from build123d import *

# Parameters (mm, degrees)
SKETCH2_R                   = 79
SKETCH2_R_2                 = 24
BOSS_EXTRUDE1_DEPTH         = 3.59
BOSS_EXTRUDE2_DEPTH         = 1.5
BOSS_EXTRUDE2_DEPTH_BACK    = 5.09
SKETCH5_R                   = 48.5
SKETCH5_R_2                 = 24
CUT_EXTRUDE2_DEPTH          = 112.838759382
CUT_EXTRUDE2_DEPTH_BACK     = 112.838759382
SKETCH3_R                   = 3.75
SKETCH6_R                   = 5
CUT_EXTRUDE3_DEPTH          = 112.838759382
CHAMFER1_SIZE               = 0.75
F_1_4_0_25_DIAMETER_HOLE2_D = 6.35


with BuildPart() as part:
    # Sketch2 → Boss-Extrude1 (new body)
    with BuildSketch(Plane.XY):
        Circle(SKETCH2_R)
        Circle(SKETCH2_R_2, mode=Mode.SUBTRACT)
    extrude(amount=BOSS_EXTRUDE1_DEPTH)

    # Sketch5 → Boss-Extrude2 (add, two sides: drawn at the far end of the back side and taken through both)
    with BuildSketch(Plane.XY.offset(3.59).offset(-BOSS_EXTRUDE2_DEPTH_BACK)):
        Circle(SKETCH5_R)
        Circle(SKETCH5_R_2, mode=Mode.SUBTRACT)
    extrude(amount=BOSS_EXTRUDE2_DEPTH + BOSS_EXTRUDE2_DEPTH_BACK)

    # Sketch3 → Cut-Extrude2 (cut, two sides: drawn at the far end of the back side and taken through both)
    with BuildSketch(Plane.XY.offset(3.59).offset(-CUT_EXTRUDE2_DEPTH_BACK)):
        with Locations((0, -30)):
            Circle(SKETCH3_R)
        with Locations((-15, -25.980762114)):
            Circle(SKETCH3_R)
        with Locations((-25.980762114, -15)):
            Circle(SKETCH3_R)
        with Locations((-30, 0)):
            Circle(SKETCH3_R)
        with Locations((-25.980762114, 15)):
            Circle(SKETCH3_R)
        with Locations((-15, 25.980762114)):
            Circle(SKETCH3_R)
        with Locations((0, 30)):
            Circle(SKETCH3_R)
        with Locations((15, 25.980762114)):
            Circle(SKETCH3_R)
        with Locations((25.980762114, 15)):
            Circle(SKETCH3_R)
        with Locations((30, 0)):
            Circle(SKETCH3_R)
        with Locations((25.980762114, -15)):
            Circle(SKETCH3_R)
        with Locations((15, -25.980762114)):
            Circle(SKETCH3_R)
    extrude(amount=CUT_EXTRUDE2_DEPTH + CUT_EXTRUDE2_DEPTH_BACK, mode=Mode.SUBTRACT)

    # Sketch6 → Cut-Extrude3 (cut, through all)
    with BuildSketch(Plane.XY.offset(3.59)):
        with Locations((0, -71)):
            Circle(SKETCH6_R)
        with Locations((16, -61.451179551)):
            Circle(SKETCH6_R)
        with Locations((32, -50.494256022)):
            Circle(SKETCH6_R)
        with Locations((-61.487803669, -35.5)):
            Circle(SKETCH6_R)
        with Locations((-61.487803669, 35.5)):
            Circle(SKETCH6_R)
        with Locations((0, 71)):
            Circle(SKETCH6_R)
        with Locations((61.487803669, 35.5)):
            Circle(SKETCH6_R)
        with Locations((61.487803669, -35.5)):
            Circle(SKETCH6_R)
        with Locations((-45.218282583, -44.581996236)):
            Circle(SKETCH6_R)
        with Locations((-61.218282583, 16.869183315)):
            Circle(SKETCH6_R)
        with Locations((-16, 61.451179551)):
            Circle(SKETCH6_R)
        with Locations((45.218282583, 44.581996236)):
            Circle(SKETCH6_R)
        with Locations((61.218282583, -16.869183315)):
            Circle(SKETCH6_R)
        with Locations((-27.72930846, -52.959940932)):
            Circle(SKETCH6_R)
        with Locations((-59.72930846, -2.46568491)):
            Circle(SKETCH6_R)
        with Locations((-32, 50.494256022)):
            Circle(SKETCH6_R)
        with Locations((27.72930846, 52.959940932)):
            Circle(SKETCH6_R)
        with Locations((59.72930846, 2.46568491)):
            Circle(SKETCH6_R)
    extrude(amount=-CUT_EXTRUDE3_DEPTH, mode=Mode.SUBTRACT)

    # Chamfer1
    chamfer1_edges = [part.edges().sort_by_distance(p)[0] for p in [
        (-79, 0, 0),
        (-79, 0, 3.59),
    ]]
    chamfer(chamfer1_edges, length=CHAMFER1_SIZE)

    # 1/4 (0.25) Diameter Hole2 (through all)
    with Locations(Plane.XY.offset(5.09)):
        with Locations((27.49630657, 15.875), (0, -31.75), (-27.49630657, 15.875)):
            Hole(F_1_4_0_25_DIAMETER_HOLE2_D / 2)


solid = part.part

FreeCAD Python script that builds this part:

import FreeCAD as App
import Part
import Sketcher
from FreeCAD import Vector
Q = App.Units.Quantity


def edges_at(feature, points):
    """Names of the edges that pass closest to the given points."""
    edges = feature.Shape.Edges
    near = lambda p: min(range(len(edges)), key=lambda i: edges[i].distToShape(Part.Vertex(*p))[0])
    return sorted({f"Edge{near(p) + 1}" for p in points})

doc = App.newDocument("Part")
params = doc.addObject("Spreadsheet::Sheet", "Params")
for row, (alias, value) in enumerate([
    ("sketch1_diameter", "158 mm"),
    ("sketch1_diameter2", "48 mm"),
    ("pad1_length", "3.59 mm"),
    ("sketch2_diameter", "97 mm"),
    ("sketch2_diameter2", "48 mm"),
    ("pad2_length", "1.5 mm"),
    ("pad2_length2", "5.09 mm"),
    ("sketch3_diameter", "7.5 mm"),
    ("sketch4_diameter", "10 mm"),
    ("chamfer_size", "0.75 mm"),
    ("sketch5_diameter", "6.35 mm"),
    ("hole_diameter", "6.35 mm"),
], start=1):
    params.set(f"A{row}", alias)
    params.set(f"B{row}", "=" + value)
    params.setAlias(f"B{row}", alias)

body = doc.addObject("PartDesign::Body", "Body")

sketch1 = body.newObject("Sketcher::SketchObject", "Sketch")
sketch1.AttachmentSupport = (doc.getObject("XY_Plane"), [""])
sketch1.MapMode = "FlatFace"
sketch1.addGeometry([
    Part.Circle(Vector(0, 0, 0), Vector(0, 0, 1), 79),
    Part.Circle(Vector(0, 0, 0), Vector(0, 0, 1), 24),
], False)
sketch1.addConstraint([
    Sketcher.Constraint("Coincident", 0, 3, -1, 1),
    Sketcher.Constraint("Coincident", 1, 3, -1, 1),
    Sketcher.Constraint("Diameter", 0, Q("158 mm")),
    Sketcher.Constraint("Diameter", 1, Q("48 mm")),
])
sketch1.setExpression("Constraints[2]", "Params.sketch1_diameter")
sketch1.setExpression("Constraints[3]", "Params.sketch1_diameter2")
pad1 = body.newObject("PartDesign::Pad", "Pad")
pad1.Profile = sketch1
pad1.setExpression("Length", "Params.pad1_length")

sketch2 = body.newObject("Sketcher::SketchObject", "Sketch001")
sketch2.AttachmentSupport = (doc.getObject("XY_Plane"), [""])
sketch2.MapMode = "FlatFace"
sketch2.AttachmentOffset = App.Placement(Vector(0, 0, 3.59), App.Rotation())
sketch2.addGeometry([
    Part.Circle(Vector(0, 0, 0), Vector(0, 0, 1), 48),
    Part.Circle(Vector(0, 0, 0), Vector(0, 0, 1), 24),
], False)
sketch2.addConstraint([
    Sketcher.Constraint("Coincident", 0, 3, -1, 1),
    Sketcher.Constraint("Coincident", 1, 3, -1, 1),
    Sketcher.Constraint("Diameter", 0, Q("97 mm")),
    Sketcher.Constraint("Diameter", 1, Q("48 mm")),
])
sketch2.setExpression("Constraints[2]", "Params.sketch2_diameter")
sketch2.setExpression("Constraints[3]", "Params.sketch2_diameter2")
pad2 = body.newObject("PartDesign::Pad", "Pad001")
pad2.Profile = sketch2
pad2.Type = "TwoLengths"
pad2.setExpression("Length", "Params.pad2_length")
pad2.setExpression("Length2", "Params.pad2_length2")

sketch3 = body.newObject("Sketcher::SketchObject", "Sketch002")
sketch3.AttachmentSupport = (doc.getObject("XY_Plane"), [""])
sketch3.MapMode = "FlatFace"
sketch3.AttachmentOffset = App.Placement(Vector(0, 0, 3.59), App.Rotation())
sketch3.addGeometry([
    Part.Circle(Vector(0, -30, 0), Vector(0, 0, 1), 3.8),
    Part.Circle(Vector(-15, -26, 0), Vector(0, 0, 1), 3.8),
    Part.Circle(Vector(-26, -15, 0), Vector(0, 0, 1), 3.8),
    Part.Circle(Vector(-30, 0, 0), Vector(0, 0, 1), 3.8),
    Part.Circle(Vector(-26, 15, 0), Vector(0, 0, 1), 3.8),
    Part.Circle(Vector(-15, 26, 0), Vector(0, 0, 1), 3.8),
    Part.Circle(Vector(0, 30, 0), Vector(0, 0, 1), 3.8),
    Part.Circle(Vector(15, 26, 0), Vector(0, 0, 1), 3.8),
    Part.Circle(Vector(26, 15, 0), Vector(0, 0, 1), 3.8),
    Part.Circle(Vector(30, 0, 0), Vector(0, 0, 1), 3.8),
    Part.Circle(Vector(26, -15, 0), Vector(0, 0, 1), 3.8),
    Part.Circle(Vector(15, -26, 0), Vector(0, 0, 1), 3.8),
], False)
sketch3.addConstraint([
    Sketcher.Constraint("Equal", 0, 1),
    Sketcher.Constraint("Equal", 1, 2),
    Sketcher.Constraint("Equal", 2, 3),
    Sketcher.Constraint("Equal", 3, 4),
    Sketcher.Constraint("Equal", 4, 5),
    Sketcher.Constraint("Equal", 5, 6),
    Sketcher.Constraint("Equal", 6, 7),
    Sketcher.Constraint("Equal", 7, 8),
    Sketcher.Constraint("Equal", 8, 9),
    Sketcher.Constraint("Equal", 9, 10),
    Sketcher.Constraint("Equal", 10, 11),
    Sketcher.Constraint("Symmetric", 0, 3, 6, 3, -1, 1),
    Sketcher.Constraint("Symmetric", 1, 3, 7, 3, -1, 1),
    Sketcher.Constraint("Symmetric", 2, 3, 8, 3, -1, 1),
    Sketcher.Constraint("Symmetric", 3, 3, 9, 3, -1, 1),
    Sketcher.Constraint("Symmetric", 4, 3, 10, 3, -1, 1),
    Sketcher.Constraint("Symmetric", 5, 3, 11, 3, -1, 1),
    Sketcher.Constraint("Symmetric", 5, 3, 7, 3, -2),
    Sketcher.Constraint("Symmetric", 4, 3, 8, 3, -2),
    Sketcher.Constraint("PointOnObject", 0, 3, -2),
    Sketcher.Constraint("PointOnObject", 3, 3, -1),
    Sketcher.Constraint("Diameter", 0, Q("7.5 mm")),
    Sketcher.Constraint("DistanceY", 0, 3, -1, 1, Q("30 mm")),
    Sketcher.Constraint("DistanceX", 1, 3, -1, 1, Q("15 mm")),
    Sketcher.Constraint("DistanceY", 2, 3, -1, 1, Q("15 mm")),
    Sketcher.Constraint("DistanceX", 3, 3, -1, 1, Q("30 mm")),
    Sketcher.Constraint("DistanceY", 1, 3, -1, 1, Q("25.980762 mm")),
    Sketcher.Constraint("DistanceX", 2, 3, -1, 1, Q("25.980762 mm")),
])
sketch3.setExpression("Constraints[21]", "Params.sketch3_diameter")
pocket1 = body.newObject("PartDesign::Pocket", "Pocket")
pocket1.Profile = sketch3
pocket1.Type = "ThroughAll"
pocket1.Midplane = True

sketch4 = body.newObject("Sketcher::SketchObject", "Sketch003")
sketch4.AttachmentSupport = (doc.getObject("XY_Plane"), [""])
sketch4.MapMode = "FlatFace"
sketch4.AttachmentOffset = App.Placement(Vector(0, 0, 3.59), App.Rotation())
sketch4.addGeometry([
    Part.Circle(Vector(0, -71, 0), Vector(0, 0, 1), 5),
    Part.Circle(Vector(16, -61, 0), Vector(0, 0, 1), 5),
    Part.Circle(Vector(32, -50, 0), Vector(0, 0, 1), 5),
    Part.Circle(Vector(-61, -36, 0), Vector(0, 0, 1), 5),
    Part.Circle(Vector(-61, 36, 0), Vector(0, 0, 1), 5),
    Part.Circle(Vector(0, 71, 0), Vector(0, 0, 1), 5),
    Part.Circle(Vector(61, 36, 0), Vector(0, 0, 1), 5),
    Part.Circle(Vector(61, -36, 0), Vector(0, 0, 1), 5),
    Part.Circle(Vector(-45, -45, 0), Vector(0, 0, 1), 5),
    Part.Circle(Vector(-61, 17, 0), Vector(0, 0, 1), 5),
    Part.Circle(Vector(-16, 61, 0), Vector(0, 0, 1), 5),
    Part.Circle(Vector(45, 45, 0), Vector(0, 0, 1), 5),
    Part.Circle(Vector(61, -17, 0), Vector(0, 0, 1), 5),
    Part.Circle(Vector(-28, -53, 0), Vector(0, 0, 1), 5),
    Part.Circle(Vector(-60, -2, 0), Vector(0, 0, 1), 5),
    Part.Circle(Vector(-32, 50, 0), Vector(0, 0, 1), 5),
    Part.Circle(Vector(28, 53, 0), Vector(0, 0, 1), 5),
    Part.Circle(Vector(60, 2, 0), Vector(0, 0, 1), 5),
], False)
sketch4.addConstraint([
    Sketcher.Constraint("Equal", 0, 1),
    Sketcher.Constraint("Equal", 1, 2),
    Sketcher.Constraint("Equal", 2, 3),
    Sketcher.Constraint("Equal", 3, 4),
    Sketcher.Constraint("Equal", 4, 5),
    Sketcher.Constraint("Equal", 5, 6),
    Sketcher.Constraint("Equal", 6, 7),
    Sketcher.Constraint("Equal", 7, 8),
    Sketcher.Constraint("Equal", 8, 9),
    Sketcher.Constraint("Equal", 9, 10),
    Sketcher.Constraint("Equal", 10, 11),
    Sketcher.Constraint("Equal", 11, 12),
    Sketcher.Constraint("Equal", 12, 13),
    Sketcher.Constraint("Equal", 13, 14),
    Sketcher.Constraint("Equal", 14, 15),
    Sketcher.Constraint("Equal", 15, 16),
    Sketcher.Constraint("Equal", 16, 17),
    Sketcher.Constraint("Symmetric", 0, 3, 5, 3, -1, 1),
    Sketcher.Constraint("Symmetric", 3, 3, 6, 3, -1, 1),
    Sketcher.Constraint("Symmetric", 4, 3, 7, 3, -1, 1),
    Sketcher.Constraint("Symmetric", 1, 3, 10, 3, -1, 1),
    Sketcher.Constraint("Symmetric", 8, 3, 11, 3, -1, 1),
    Sketcher.Constraint("Symmetric", 9, 3, 12, 3, -1, 1),
    Sketcher.Constraint("Symmetric", 2, 3, 15, 3, -1, 1),
    Sketcher.Constraint("Symmetric", 13, 3, 16, 3, -1, 1),
    Sketcher.Constraint("Symmetric", 14, 3, 17, 3, -1, 1),
    Sketcher.Constraint("Symmetric", 4, 3, 6, 3, -2),
    Sketcher.Constraint("PointOnObject", 0, 3, -2),
    Sketcher.Constraint("Diameter", 0, Q("10 mm")),
    Sketcher.Constraint("DistanceY", 0, 3, -1, 1, Q("71 mm")),
    Sketcher.Constraint("DistanceX", -1, 1, 1, 3, Q("16 mm")),
    Sketcher.Constraint("DistanceX", -1, 1, 2, 3, Q("32 mm")),
    Sketcher.Constraint("DistanceY", 3, 3, 4, 3, Q("71 mm")),
    Sketcher.Constraint("DistanceX", 9, 3, 8, 3, Q("16 mm")),
    Sketcher.Constraint("DistanceX", 14, 3, 13, 3, Q("32 mm")),
    Sketcher.Constraint("DistanceY", 1, 3, -1, 1, Q("61.45118 mm")),
    Sketcher.Constraint("DistanceX", 13, 3, -1, 1, Q("27.729308 mm")),
    Sketcher.Constraint("DistanceY", 13, 3, -1, 1, Q("52.959941 mm")),
    Sketcher.Constraint("DistanceX", 3, 3, 8, 3, Q("16.269521 mm")),
    Sketcher.Constraint("DistanceY", 2, 3, 8, 3, Q("5.91226 mm")),
    Sketcher.Constraint("DistanceY", 8, 3, 9, 3, Q("61.45118 mm")),
    Sketcher.Constraint("DistanceY", 14, 3, 9, 3, Q("19.334868 mm")),
    Sketcher.Constraint("DistanceY", 14, 3, 15, 3, Q("52.959941 mm")),
    Sketcher.Constraint("DistanceX", 3, 3, -1, 1, Q("61.487804 mm")),
])
sketch4.setExpression("Constraints[28]", "Params.sketch4_diameter")
pocket2 = body.newObject("PartDesign::Pocket", "Pocket001")
pocket2.Profile = sketch4
pocket2.Type = "ThroughAll"
doc.recompute()

chamfer = body.newObject("PartDesign::Chamfer", "Chamfer")
chamfer.Base = (pocket2, edges_at(pocket2, [(-79, 0, 0), (-79, 0, 3.59)]))
chamfer.setExpression("Size", "Params.chamfer_size")

sketch5 = body.newObject("Sketcher::SketchObject", "Sketch004")
sketch5.AttachmentSupport = (doc.getObject("XY_Plane"), [""])
sketch5.MapMode = "FlatFace"
sketch5.AttachmentOffset = App.Placement(Vector(0, 0, 5.09), App.Rotation())
sketch5.addGeometry([
    Part.Circle(Vector(27.5, 15.9, 0), Vector(0, 0, 1), 3.2),
    Part.Circle(Vector(0, -31.8, 0), Vector(0, 0, 1), 3.2),
    Part.Circle(Vector(-27.5, 15.9, 0), Vector(0, 0, 1), 3.2),
], False)
sketch5.addConstraint([
    Sketcher.Constraint("Equal", 0, 1),
    Sketcher.Constraint("Equal", 1, 2),
    Sketcher.Constraint("Symmetric", 0, 3, 2, 3, -2),
    Sketcher.Constraint("PointOnObject", 1, 3, -2),
    Sketcher.Constraint("Diameter", 0, Q("6.35 mm")),
    Sketcher.Constraint("DistanceY", 1, 3, -1, 1, Q("31.75 mm")),
    Sketcher.Constraint("DistanceY", -1, 1, 0, 3, Q("15.875 mm")),
    Sketcher.Constraint("DistanceX", -1, 1, 0, 3, Q("27.496307 mm")),
])
sketch5.setExpression("Constraints[4]", "Params.sketch5_diameter")
doc.recompute()
hole = body.newObject("PartDesign::Hole", "Hole")
hole.Profile = sketch5
hole.ThreadType = "None"
hole.setExpression("Diameter", "Params.hole_diameter")
hole.DepthType = "ThroughAll"

doc.recompute()
